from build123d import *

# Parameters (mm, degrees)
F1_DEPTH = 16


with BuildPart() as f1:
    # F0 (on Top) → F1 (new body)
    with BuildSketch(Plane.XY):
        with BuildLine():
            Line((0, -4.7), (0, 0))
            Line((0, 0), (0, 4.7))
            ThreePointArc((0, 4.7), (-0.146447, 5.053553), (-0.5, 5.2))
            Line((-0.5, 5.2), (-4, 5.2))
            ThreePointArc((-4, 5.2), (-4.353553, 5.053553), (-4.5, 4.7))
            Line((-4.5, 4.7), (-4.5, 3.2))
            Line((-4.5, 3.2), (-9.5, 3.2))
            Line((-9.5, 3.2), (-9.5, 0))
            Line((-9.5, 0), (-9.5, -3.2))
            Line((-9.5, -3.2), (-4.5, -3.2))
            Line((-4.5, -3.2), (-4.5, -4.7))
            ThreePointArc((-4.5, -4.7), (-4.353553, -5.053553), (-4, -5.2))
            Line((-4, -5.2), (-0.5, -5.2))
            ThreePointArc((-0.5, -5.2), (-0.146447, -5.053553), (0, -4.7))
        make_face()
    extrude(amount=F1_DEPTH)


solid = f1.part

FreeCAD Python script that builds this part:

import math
import FreeCAD as App
import Part
import Sketcher

V = App.Vector

doc = App.newDocument("Part")
body = doc.addObject("PartDesign::Body", "Body")

# Sketch on XY plane
sketch1 = doc.addObject("Sketcher::SketchObject", "Sketch")
body.addObject(sketch1)
sketch1.AttachmentSupport = (doc.XY_Plane, [""])
sketch1.MapMode = "FlatFace"
sketch1.addGeometry([
    Part.LineSegment(V(0, -4.7, 0), V(0, 4.7, 0)),  # 0
    Part.ArcOfCircle(Part.Circle(V(-0.5, 4.7, 0), V(0, 0, 1), 0.5), math.radians(0), math.radians(90)),  # 1
    Part.LineSegment(V(-0.5, 5.2, 0), V(-4, 5.2, 0)),  # 2
    Part.ArcOfCircle(Part.Circle(V(-4, 4.7, 0), V(0, 0, 1), 0.5), math.radians(90), math.radians(180)),  # 3
    Part.LineSegment(V(-4.5, 4.7, 0), V(-4.5, 3.2, 0)),  # 4
    Part.LineSegment(V(-4.5, 3.2, 0), V(-9.5, 3.2, 0)),  # 5
    Part.LineSegment(V(-9.5, 3.2, 0), V(-9.5, -3.2, 0)),  # 6
    Part.LineSegment(V(-9.5, -3.2, 0), V(-4.5, -3.2, 0)),  # 7
    Part.LineSegment(V(-4.5, -3.2, 0), V(-4.5, -4.7, 0)),  # 8
    Part.ArcOfCircle(Part.Circle(V(-4, -4.7, 0), V(0, 0, 1), 0.5), math.radians(-180), math.radians(-90)),  # 9
    Part.LineSegment(V(-4, -5.2, 0), V(-0.5, -5.2, 0)),  # 10
    Part.ArcOfCircle(Part.Circle(V(-0.5, -4.7, 0), V(0, 0, 1), 0.5), math.radians(-90), math.radians(0)),  # 11
], False)
sketch1.addConstraint([
    Sketcher.Constraint("Coincident", 0, 2, 1, 1),
    Sketcher.Constraint("Coincident", 1, 2, 2, 1),
    Sketcher.Constraint("Coincident", 2, 2, 3, 1),
    Sketcher.Constraint("Coincident", 3, 2, 4, 1),
    Sketcher.Constraint("Coincident", 4, 2, 5, 1),
    Sketcher.Constraint("Coincident", 5, 2, 6, 1),
    Sketcher.Constraint("Coincident", 6, 2, 7, 1),
    Sketcher.Constraint("Coincident", 7, 2, 8, 1),
    Sketcher.Constraint("Coincident", 8, 2, 9, 1),
    Sketcher.Constraint("Coincident", 9, 2, 10, 1),
    Sketcher.Constraint("Coincident", 10, 2, 11, 1),
    Sketcher.Constraint("Coincident", 11, 2, 0, 1),
    Sketcher.Constraint("Vertical", 0),
    Sketcher.Constraint("Horizontal", 2),
    Sketcher.Constraint("Vertical", 4),
    Sketcher.Constraint("Horizontal", 5),
    Sketcher.Constraint("Vertical", 6),
    Sketcher.Constraint("Horizontal", 7),
    Sketcher.Constraint("Vertical", 8),
    Sketcher.Constraint("Horizontal", 10),
    Sketcher.Constraint("Equal", 1, 3),
    Sketcher.Constraint("Equal", 3, 9),
    Sketcher.Constraint("Equal", 9, 11),
    Sketcher.Constraint("Symmetric", 0, 2, 11, 2, -1, 1),
    Sketcher.Constraint("Symmetric", 3, 3, 9, 3, -1),
    Sketcher.Constraint("Horizontal", 3, 3, 0, 2),
    Sketcher.Constraint("Horizontal", 0, 2, 3, 2),
    Sketcher.Constraint("Horizontal", 11, 3, 8, 2),
    Sketcher.Constraint("Vertical", 11, 3, 1, 2),
    Sketcher.Constraint("Vertical", 9, 3, 2, 2),
    Sketcher.Constraint("Vertical", 2, 2, 9, 2),
    Sketcher.Constraint("Vertical", 1, 2, 10, 2),
    Sketcher.Constraint("Equal", 4, 8),
    Sketcher.Constraint("Radius", 1, 0.500001),
    Sketcher.Constraint("DistanceX", 5, 2, 5, 1, 5.0),
    Sketcher.Constraint("DistanceX", 2, 2, 2, 1, 3.5),
    Sketcher.Constraint("DistanceY", 0, 1, 0, 2, 9.4),
    Sketcher.Constraint("DistanceY", 4, 2, 4, 1, 1.5),
])
pad1 = doc.addObject("PartDesign::Pad", "Pad")
body.addObject(pad1)
pad1.Profile = sketch1
pad1.Length = 16

doc.recompute()
